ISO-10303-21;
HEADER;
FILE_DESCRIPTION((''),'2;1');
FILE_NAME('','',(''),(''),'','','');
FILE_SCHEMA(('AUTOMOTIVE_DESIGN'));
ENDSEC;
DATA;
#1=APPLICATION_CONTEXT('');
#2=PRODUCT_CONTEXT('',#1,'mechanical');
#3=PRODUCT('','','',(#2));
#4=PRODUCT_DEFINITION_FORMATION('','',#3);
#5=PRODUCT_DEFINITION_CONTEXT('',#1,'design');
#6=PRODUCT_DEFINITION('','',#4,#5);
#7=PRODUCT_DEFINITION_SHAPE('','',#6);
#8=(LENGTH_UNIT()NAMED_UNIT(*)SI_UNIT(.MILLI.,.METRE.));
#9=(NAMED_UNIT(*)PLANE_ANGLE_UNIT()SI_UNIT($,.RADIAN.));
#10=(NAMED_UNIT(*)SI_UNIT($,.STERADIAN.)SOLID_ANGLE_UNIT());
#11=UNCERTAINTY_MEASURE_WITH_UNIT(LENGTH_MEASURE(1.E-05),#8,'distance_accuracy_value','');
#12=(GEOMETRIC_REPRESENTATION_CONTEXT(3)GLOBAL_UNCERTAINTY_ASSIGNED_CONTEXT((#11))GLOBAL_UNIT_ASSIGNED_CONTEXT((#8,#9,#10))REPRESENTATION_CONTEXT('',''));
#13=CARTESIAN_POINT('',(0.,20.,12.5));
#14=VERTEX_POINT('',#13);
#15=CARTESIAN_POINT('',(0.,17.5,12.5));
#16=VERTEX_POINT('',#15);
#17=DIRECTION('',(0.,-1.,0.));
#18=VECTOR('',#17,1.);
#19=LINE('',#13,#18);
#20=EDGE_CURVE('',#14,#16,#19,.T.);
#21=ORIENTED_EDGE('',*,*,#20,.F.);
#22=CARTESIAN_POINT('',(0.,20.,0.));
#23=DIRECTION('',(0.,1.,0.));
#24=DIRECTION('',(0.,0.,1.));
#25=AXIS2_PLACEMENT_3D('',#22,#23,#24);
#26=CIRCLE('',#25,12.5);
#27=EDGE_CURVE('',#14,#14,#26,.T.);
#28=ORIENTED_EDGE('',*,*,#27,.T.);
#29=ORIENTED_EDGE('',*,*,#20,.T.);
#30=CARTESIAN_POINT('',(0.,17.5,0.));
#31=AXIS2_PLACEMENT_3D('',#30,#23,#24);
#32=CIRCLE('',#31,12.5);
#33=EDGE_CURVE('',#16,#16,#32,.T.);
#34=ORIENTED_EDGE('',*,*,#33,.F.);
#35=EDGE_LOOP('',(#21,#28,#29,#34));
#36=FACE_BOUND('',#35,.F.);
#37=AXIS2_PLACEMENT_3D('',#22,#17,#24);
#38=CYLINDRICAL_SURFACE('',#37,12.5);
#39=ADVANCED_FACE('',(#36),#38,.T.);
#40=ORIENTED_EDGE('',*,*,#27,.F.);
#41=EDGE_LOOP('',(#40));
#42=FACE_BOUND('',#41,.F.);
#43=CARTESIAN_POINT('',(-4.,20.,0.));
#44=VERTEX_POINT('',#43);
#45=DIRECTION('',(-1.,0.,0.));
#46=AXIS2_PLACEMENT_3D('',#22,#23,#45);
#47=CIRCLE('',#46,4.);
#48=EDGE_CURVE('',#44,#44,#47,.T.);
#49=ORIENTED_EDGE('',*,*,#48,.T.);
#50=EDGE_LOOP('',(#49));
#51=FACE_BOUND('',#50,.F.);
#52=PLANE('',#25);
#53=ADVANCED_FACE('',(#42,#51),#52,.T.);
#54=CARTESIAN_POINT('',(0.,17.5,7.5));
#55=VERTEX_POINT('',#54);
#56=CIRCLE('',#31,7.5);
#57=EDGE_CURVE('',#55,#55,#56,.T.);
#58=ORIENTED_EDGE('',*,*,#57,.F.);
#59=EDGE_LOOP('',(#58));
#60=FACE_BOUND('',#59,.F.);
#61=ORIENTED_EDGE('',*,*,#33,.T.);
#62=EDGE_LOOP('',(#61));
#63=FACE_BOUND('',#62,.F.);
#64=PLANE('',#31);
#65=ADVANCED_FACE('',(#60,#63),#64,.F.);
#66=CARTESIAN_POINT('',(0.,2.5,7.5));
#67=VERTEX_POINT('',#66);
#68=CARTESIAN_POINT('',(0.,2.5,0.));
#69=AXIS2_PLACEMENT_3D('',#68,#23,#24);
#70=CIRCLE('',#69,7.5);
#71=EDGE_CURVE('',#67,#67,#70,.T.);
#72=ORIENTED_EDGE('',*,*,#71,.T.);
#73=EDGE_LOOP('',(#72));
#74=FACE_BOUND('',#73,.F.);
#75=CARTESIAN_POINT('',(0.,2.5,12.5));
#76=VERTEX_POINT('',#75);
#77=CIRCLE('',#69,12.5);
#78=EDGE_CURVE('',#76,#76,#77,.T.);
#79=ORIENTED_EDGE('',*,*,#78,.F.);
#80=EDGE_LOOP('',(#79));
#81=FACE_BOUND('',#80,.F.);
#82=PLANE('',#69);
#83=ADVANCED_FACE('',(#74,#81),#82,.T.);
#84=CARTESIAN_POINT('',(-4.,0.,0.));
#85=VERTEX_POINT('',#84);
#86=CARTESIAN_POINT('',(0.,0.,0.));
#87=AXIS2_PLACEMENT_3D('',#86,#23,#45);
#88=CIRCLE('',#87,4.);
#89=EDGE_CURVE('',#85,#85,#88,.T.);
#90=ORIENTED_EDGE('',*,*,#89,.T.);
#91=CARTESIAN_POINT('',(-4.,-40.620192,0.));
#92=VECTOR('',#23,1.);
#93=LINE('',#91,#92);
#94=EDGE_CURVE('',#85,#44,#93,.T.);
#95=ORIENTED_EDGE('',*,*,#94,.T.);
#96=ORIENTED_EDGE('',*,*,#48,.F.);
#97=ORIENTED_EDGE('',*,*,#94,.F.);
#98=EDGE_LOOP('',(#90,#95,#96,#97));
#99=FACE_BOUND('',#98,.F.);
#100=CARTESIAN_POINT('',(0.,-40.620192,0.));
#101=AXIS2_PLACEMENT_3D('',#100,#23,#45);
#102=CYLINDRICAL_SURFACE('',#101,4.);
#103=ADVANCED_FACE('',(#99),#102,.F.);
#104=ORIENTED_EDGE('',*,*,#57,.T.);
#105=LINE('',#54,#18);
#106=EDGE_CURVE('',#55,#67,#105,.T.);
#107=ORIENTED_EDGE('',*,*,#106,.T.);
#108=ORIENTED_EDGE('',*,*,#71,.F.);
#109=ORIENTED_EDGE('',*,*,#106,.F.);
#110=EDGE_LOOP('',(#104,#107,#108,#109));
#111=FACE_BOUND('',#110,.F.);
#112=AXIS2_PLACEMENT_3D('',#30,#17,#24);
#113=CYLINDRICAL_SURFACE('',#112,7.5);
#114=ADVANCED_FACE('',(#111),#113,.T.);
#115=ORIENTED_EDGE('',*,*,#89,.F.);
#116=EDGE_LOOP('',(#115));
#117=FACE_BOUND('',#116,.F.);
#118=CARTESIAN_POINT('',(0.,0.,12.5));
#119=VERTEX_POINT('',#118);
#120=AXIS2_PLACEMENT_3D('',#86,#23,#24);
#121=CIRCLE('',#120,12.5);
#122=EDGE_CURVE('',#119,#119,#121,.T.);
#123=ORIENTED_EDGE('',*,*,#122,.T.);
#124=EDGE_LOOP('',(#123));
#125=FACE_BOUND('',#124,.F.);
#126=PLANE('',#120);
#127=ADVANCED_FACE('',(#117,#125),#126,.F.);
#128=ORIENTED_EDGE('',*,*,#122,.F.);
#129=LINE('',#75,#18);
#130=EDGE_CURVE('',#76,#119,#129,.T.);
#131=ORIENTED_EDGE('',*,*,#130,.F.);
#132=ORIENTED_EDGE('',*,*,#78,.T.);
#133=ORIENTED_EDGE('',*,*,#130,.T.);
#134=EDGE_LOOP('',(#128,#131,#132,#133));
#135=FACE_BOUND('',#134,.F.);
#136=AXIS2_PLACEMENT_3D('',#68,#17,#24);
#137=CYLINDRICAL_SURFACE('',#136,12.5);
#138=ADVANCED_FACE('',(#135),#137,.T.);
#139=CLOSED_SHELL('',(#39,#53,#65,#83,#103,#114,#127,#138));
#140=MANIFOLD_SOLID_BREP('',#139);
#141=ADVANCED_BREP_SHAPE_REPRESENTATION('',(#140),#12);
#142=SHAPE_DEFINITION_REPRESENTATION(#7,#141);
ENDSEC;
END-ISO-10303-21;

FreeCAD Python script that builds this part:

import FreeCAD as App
import Part
import Sketcher
Q = App.Units.Quantity

doc = App.newDocument("Part")
body = doc.addObject("PartDesign::Body", "Body")

# Sketch on YZ plane
sketch1 = body.newObject("Sketcher::SketchObject", "Sketch")
sketch1.AttachmentSupport = (doc.getObject("YZ_Plane"), [""])
sketch1.MapMode = "FlatFace"
sketch1.addGeometry([
    Part.LineSegment(App.Vector(0, 12.5, 0), App.Vector(0, 0, 0)),  # 0
    Part.LineSegment(App.Vector(0, 0, 0), App.Vector(20, 0, 0)),  # 1
    Part.LineSegment(App.Vector(20, 0, 0), App.Vector(20, 12.5, 0)),  # 2
    Part.LineSegment(App.Vector(20, 12.5, 0), App.Vector(17.5, 12.5, 0)),  # 3
    Part.LineSegment(App.Vector(17.5, 12.5, 0), App.Vector(17.5, 7.5, 0)),  # 4
    Part.LineSegment(App.Vector(17.5, 7.5, 0), App.Vector(2.5, 7.5, 0)),  # 5
    Part.LineSegment(App.Vector(2.5, 7.5, 0), App.Vector(2.5, 12.5, 0)),  # 6
    Part.LineSegment(App.Vector(2.5, 12.5, 0), App.Vector(0, 12.5, 0)),  # 7
], False)
sketch1.addConstraint([
    Sketcher.Constraint("Coincident", 0, 2, 1, 1),
    Sketcher.Constraint("Coincident", 1, 2, 2, 1),
    Sketcher.Constraint("Coincident", 2, 2, 3, 1),
    Sketcher.Constraint("Coincident", 3, 2, 4, 1),
    Sketcher.Constraint("Coincident", 4, 2, 5, 1),
    Sketcher.Constraint("Coincident", 5, 2, 6, 1),
    Sketcher.Constraint("Coincident", 6, 2, 7, 1),
    Sketcher.Constraint("Coincident", 7, 2, 0, 1),
    Sketcher.Constraint("Vertical", 0),
    Sketcher.Constraint("Horizontal", 1),
    Sketcher.Constraint("Vertical", 2),
    Sketcher.Constraint("Horizontal", 3),
    Sketcher.Constraint("Vertical", 4),
    Sketcher.Constraint("Horizontal", 5),
    Sketcher.Constraint("Vertical", 6),
    Sketcher.Constraint("Horizontal", 7),
    Sketcher.Constraint("Coincident", 0, 2, -1, 1),
    Sketcher.Constraint("Horizontal", 3, 2, 6, 2),
    Sketcher.Constraint("Equal", 3, 7),
    Sketcher.Constraint("DistanceX", 1, 1, 1, 2, Q("20 mm")),
    Sketcher.Constraint("DistanceX", 5, 2, 5, 1, Q("15 mm")),
    Sketcher.Constraint("DistanceY", 4, 2, 4, 1, Q("5 mm")),
    Sketcher.Constraint("DistanceY", 0, 2, 0, 1, Q("12.5 mm")),
])
revolution = body.newObject("PartDesign::Revolution", "Revolution")
revolution.Profile = sketch1
revolution.ReferenceAxis = (sketch1, ["H_Axis"])
revolution.Angle = 360

# Sketch on XZ plane
sketch2 = body.newObject("Sketcher::SketchObject", "Sketch001")
sketch2.AttachmentSupport = (doc.getObject("XZ_Plane"), [""])
sketch2.MapMode = "FlatFace"
sketch2.addGeometry(Part.Circle(App.Vector(0, 0, 0), App.Vector(0, 0, 1), 4), False)
sketch2.addConstraint([
    Sketcher.Constraint("Coincident", 0, 3, -1, 1),
    Sketcher.Constraint("Diameter", 0, Q("8 mm")),
])
doc.recompute()
hole = body.newObject("PartDesign::Hole", "Hole")
hole.Profile = sketch2
hole.ThreadType = "None"
hole.Diameter = 8
hole.DepthType = "ThroughAll"

doc.recompute()
